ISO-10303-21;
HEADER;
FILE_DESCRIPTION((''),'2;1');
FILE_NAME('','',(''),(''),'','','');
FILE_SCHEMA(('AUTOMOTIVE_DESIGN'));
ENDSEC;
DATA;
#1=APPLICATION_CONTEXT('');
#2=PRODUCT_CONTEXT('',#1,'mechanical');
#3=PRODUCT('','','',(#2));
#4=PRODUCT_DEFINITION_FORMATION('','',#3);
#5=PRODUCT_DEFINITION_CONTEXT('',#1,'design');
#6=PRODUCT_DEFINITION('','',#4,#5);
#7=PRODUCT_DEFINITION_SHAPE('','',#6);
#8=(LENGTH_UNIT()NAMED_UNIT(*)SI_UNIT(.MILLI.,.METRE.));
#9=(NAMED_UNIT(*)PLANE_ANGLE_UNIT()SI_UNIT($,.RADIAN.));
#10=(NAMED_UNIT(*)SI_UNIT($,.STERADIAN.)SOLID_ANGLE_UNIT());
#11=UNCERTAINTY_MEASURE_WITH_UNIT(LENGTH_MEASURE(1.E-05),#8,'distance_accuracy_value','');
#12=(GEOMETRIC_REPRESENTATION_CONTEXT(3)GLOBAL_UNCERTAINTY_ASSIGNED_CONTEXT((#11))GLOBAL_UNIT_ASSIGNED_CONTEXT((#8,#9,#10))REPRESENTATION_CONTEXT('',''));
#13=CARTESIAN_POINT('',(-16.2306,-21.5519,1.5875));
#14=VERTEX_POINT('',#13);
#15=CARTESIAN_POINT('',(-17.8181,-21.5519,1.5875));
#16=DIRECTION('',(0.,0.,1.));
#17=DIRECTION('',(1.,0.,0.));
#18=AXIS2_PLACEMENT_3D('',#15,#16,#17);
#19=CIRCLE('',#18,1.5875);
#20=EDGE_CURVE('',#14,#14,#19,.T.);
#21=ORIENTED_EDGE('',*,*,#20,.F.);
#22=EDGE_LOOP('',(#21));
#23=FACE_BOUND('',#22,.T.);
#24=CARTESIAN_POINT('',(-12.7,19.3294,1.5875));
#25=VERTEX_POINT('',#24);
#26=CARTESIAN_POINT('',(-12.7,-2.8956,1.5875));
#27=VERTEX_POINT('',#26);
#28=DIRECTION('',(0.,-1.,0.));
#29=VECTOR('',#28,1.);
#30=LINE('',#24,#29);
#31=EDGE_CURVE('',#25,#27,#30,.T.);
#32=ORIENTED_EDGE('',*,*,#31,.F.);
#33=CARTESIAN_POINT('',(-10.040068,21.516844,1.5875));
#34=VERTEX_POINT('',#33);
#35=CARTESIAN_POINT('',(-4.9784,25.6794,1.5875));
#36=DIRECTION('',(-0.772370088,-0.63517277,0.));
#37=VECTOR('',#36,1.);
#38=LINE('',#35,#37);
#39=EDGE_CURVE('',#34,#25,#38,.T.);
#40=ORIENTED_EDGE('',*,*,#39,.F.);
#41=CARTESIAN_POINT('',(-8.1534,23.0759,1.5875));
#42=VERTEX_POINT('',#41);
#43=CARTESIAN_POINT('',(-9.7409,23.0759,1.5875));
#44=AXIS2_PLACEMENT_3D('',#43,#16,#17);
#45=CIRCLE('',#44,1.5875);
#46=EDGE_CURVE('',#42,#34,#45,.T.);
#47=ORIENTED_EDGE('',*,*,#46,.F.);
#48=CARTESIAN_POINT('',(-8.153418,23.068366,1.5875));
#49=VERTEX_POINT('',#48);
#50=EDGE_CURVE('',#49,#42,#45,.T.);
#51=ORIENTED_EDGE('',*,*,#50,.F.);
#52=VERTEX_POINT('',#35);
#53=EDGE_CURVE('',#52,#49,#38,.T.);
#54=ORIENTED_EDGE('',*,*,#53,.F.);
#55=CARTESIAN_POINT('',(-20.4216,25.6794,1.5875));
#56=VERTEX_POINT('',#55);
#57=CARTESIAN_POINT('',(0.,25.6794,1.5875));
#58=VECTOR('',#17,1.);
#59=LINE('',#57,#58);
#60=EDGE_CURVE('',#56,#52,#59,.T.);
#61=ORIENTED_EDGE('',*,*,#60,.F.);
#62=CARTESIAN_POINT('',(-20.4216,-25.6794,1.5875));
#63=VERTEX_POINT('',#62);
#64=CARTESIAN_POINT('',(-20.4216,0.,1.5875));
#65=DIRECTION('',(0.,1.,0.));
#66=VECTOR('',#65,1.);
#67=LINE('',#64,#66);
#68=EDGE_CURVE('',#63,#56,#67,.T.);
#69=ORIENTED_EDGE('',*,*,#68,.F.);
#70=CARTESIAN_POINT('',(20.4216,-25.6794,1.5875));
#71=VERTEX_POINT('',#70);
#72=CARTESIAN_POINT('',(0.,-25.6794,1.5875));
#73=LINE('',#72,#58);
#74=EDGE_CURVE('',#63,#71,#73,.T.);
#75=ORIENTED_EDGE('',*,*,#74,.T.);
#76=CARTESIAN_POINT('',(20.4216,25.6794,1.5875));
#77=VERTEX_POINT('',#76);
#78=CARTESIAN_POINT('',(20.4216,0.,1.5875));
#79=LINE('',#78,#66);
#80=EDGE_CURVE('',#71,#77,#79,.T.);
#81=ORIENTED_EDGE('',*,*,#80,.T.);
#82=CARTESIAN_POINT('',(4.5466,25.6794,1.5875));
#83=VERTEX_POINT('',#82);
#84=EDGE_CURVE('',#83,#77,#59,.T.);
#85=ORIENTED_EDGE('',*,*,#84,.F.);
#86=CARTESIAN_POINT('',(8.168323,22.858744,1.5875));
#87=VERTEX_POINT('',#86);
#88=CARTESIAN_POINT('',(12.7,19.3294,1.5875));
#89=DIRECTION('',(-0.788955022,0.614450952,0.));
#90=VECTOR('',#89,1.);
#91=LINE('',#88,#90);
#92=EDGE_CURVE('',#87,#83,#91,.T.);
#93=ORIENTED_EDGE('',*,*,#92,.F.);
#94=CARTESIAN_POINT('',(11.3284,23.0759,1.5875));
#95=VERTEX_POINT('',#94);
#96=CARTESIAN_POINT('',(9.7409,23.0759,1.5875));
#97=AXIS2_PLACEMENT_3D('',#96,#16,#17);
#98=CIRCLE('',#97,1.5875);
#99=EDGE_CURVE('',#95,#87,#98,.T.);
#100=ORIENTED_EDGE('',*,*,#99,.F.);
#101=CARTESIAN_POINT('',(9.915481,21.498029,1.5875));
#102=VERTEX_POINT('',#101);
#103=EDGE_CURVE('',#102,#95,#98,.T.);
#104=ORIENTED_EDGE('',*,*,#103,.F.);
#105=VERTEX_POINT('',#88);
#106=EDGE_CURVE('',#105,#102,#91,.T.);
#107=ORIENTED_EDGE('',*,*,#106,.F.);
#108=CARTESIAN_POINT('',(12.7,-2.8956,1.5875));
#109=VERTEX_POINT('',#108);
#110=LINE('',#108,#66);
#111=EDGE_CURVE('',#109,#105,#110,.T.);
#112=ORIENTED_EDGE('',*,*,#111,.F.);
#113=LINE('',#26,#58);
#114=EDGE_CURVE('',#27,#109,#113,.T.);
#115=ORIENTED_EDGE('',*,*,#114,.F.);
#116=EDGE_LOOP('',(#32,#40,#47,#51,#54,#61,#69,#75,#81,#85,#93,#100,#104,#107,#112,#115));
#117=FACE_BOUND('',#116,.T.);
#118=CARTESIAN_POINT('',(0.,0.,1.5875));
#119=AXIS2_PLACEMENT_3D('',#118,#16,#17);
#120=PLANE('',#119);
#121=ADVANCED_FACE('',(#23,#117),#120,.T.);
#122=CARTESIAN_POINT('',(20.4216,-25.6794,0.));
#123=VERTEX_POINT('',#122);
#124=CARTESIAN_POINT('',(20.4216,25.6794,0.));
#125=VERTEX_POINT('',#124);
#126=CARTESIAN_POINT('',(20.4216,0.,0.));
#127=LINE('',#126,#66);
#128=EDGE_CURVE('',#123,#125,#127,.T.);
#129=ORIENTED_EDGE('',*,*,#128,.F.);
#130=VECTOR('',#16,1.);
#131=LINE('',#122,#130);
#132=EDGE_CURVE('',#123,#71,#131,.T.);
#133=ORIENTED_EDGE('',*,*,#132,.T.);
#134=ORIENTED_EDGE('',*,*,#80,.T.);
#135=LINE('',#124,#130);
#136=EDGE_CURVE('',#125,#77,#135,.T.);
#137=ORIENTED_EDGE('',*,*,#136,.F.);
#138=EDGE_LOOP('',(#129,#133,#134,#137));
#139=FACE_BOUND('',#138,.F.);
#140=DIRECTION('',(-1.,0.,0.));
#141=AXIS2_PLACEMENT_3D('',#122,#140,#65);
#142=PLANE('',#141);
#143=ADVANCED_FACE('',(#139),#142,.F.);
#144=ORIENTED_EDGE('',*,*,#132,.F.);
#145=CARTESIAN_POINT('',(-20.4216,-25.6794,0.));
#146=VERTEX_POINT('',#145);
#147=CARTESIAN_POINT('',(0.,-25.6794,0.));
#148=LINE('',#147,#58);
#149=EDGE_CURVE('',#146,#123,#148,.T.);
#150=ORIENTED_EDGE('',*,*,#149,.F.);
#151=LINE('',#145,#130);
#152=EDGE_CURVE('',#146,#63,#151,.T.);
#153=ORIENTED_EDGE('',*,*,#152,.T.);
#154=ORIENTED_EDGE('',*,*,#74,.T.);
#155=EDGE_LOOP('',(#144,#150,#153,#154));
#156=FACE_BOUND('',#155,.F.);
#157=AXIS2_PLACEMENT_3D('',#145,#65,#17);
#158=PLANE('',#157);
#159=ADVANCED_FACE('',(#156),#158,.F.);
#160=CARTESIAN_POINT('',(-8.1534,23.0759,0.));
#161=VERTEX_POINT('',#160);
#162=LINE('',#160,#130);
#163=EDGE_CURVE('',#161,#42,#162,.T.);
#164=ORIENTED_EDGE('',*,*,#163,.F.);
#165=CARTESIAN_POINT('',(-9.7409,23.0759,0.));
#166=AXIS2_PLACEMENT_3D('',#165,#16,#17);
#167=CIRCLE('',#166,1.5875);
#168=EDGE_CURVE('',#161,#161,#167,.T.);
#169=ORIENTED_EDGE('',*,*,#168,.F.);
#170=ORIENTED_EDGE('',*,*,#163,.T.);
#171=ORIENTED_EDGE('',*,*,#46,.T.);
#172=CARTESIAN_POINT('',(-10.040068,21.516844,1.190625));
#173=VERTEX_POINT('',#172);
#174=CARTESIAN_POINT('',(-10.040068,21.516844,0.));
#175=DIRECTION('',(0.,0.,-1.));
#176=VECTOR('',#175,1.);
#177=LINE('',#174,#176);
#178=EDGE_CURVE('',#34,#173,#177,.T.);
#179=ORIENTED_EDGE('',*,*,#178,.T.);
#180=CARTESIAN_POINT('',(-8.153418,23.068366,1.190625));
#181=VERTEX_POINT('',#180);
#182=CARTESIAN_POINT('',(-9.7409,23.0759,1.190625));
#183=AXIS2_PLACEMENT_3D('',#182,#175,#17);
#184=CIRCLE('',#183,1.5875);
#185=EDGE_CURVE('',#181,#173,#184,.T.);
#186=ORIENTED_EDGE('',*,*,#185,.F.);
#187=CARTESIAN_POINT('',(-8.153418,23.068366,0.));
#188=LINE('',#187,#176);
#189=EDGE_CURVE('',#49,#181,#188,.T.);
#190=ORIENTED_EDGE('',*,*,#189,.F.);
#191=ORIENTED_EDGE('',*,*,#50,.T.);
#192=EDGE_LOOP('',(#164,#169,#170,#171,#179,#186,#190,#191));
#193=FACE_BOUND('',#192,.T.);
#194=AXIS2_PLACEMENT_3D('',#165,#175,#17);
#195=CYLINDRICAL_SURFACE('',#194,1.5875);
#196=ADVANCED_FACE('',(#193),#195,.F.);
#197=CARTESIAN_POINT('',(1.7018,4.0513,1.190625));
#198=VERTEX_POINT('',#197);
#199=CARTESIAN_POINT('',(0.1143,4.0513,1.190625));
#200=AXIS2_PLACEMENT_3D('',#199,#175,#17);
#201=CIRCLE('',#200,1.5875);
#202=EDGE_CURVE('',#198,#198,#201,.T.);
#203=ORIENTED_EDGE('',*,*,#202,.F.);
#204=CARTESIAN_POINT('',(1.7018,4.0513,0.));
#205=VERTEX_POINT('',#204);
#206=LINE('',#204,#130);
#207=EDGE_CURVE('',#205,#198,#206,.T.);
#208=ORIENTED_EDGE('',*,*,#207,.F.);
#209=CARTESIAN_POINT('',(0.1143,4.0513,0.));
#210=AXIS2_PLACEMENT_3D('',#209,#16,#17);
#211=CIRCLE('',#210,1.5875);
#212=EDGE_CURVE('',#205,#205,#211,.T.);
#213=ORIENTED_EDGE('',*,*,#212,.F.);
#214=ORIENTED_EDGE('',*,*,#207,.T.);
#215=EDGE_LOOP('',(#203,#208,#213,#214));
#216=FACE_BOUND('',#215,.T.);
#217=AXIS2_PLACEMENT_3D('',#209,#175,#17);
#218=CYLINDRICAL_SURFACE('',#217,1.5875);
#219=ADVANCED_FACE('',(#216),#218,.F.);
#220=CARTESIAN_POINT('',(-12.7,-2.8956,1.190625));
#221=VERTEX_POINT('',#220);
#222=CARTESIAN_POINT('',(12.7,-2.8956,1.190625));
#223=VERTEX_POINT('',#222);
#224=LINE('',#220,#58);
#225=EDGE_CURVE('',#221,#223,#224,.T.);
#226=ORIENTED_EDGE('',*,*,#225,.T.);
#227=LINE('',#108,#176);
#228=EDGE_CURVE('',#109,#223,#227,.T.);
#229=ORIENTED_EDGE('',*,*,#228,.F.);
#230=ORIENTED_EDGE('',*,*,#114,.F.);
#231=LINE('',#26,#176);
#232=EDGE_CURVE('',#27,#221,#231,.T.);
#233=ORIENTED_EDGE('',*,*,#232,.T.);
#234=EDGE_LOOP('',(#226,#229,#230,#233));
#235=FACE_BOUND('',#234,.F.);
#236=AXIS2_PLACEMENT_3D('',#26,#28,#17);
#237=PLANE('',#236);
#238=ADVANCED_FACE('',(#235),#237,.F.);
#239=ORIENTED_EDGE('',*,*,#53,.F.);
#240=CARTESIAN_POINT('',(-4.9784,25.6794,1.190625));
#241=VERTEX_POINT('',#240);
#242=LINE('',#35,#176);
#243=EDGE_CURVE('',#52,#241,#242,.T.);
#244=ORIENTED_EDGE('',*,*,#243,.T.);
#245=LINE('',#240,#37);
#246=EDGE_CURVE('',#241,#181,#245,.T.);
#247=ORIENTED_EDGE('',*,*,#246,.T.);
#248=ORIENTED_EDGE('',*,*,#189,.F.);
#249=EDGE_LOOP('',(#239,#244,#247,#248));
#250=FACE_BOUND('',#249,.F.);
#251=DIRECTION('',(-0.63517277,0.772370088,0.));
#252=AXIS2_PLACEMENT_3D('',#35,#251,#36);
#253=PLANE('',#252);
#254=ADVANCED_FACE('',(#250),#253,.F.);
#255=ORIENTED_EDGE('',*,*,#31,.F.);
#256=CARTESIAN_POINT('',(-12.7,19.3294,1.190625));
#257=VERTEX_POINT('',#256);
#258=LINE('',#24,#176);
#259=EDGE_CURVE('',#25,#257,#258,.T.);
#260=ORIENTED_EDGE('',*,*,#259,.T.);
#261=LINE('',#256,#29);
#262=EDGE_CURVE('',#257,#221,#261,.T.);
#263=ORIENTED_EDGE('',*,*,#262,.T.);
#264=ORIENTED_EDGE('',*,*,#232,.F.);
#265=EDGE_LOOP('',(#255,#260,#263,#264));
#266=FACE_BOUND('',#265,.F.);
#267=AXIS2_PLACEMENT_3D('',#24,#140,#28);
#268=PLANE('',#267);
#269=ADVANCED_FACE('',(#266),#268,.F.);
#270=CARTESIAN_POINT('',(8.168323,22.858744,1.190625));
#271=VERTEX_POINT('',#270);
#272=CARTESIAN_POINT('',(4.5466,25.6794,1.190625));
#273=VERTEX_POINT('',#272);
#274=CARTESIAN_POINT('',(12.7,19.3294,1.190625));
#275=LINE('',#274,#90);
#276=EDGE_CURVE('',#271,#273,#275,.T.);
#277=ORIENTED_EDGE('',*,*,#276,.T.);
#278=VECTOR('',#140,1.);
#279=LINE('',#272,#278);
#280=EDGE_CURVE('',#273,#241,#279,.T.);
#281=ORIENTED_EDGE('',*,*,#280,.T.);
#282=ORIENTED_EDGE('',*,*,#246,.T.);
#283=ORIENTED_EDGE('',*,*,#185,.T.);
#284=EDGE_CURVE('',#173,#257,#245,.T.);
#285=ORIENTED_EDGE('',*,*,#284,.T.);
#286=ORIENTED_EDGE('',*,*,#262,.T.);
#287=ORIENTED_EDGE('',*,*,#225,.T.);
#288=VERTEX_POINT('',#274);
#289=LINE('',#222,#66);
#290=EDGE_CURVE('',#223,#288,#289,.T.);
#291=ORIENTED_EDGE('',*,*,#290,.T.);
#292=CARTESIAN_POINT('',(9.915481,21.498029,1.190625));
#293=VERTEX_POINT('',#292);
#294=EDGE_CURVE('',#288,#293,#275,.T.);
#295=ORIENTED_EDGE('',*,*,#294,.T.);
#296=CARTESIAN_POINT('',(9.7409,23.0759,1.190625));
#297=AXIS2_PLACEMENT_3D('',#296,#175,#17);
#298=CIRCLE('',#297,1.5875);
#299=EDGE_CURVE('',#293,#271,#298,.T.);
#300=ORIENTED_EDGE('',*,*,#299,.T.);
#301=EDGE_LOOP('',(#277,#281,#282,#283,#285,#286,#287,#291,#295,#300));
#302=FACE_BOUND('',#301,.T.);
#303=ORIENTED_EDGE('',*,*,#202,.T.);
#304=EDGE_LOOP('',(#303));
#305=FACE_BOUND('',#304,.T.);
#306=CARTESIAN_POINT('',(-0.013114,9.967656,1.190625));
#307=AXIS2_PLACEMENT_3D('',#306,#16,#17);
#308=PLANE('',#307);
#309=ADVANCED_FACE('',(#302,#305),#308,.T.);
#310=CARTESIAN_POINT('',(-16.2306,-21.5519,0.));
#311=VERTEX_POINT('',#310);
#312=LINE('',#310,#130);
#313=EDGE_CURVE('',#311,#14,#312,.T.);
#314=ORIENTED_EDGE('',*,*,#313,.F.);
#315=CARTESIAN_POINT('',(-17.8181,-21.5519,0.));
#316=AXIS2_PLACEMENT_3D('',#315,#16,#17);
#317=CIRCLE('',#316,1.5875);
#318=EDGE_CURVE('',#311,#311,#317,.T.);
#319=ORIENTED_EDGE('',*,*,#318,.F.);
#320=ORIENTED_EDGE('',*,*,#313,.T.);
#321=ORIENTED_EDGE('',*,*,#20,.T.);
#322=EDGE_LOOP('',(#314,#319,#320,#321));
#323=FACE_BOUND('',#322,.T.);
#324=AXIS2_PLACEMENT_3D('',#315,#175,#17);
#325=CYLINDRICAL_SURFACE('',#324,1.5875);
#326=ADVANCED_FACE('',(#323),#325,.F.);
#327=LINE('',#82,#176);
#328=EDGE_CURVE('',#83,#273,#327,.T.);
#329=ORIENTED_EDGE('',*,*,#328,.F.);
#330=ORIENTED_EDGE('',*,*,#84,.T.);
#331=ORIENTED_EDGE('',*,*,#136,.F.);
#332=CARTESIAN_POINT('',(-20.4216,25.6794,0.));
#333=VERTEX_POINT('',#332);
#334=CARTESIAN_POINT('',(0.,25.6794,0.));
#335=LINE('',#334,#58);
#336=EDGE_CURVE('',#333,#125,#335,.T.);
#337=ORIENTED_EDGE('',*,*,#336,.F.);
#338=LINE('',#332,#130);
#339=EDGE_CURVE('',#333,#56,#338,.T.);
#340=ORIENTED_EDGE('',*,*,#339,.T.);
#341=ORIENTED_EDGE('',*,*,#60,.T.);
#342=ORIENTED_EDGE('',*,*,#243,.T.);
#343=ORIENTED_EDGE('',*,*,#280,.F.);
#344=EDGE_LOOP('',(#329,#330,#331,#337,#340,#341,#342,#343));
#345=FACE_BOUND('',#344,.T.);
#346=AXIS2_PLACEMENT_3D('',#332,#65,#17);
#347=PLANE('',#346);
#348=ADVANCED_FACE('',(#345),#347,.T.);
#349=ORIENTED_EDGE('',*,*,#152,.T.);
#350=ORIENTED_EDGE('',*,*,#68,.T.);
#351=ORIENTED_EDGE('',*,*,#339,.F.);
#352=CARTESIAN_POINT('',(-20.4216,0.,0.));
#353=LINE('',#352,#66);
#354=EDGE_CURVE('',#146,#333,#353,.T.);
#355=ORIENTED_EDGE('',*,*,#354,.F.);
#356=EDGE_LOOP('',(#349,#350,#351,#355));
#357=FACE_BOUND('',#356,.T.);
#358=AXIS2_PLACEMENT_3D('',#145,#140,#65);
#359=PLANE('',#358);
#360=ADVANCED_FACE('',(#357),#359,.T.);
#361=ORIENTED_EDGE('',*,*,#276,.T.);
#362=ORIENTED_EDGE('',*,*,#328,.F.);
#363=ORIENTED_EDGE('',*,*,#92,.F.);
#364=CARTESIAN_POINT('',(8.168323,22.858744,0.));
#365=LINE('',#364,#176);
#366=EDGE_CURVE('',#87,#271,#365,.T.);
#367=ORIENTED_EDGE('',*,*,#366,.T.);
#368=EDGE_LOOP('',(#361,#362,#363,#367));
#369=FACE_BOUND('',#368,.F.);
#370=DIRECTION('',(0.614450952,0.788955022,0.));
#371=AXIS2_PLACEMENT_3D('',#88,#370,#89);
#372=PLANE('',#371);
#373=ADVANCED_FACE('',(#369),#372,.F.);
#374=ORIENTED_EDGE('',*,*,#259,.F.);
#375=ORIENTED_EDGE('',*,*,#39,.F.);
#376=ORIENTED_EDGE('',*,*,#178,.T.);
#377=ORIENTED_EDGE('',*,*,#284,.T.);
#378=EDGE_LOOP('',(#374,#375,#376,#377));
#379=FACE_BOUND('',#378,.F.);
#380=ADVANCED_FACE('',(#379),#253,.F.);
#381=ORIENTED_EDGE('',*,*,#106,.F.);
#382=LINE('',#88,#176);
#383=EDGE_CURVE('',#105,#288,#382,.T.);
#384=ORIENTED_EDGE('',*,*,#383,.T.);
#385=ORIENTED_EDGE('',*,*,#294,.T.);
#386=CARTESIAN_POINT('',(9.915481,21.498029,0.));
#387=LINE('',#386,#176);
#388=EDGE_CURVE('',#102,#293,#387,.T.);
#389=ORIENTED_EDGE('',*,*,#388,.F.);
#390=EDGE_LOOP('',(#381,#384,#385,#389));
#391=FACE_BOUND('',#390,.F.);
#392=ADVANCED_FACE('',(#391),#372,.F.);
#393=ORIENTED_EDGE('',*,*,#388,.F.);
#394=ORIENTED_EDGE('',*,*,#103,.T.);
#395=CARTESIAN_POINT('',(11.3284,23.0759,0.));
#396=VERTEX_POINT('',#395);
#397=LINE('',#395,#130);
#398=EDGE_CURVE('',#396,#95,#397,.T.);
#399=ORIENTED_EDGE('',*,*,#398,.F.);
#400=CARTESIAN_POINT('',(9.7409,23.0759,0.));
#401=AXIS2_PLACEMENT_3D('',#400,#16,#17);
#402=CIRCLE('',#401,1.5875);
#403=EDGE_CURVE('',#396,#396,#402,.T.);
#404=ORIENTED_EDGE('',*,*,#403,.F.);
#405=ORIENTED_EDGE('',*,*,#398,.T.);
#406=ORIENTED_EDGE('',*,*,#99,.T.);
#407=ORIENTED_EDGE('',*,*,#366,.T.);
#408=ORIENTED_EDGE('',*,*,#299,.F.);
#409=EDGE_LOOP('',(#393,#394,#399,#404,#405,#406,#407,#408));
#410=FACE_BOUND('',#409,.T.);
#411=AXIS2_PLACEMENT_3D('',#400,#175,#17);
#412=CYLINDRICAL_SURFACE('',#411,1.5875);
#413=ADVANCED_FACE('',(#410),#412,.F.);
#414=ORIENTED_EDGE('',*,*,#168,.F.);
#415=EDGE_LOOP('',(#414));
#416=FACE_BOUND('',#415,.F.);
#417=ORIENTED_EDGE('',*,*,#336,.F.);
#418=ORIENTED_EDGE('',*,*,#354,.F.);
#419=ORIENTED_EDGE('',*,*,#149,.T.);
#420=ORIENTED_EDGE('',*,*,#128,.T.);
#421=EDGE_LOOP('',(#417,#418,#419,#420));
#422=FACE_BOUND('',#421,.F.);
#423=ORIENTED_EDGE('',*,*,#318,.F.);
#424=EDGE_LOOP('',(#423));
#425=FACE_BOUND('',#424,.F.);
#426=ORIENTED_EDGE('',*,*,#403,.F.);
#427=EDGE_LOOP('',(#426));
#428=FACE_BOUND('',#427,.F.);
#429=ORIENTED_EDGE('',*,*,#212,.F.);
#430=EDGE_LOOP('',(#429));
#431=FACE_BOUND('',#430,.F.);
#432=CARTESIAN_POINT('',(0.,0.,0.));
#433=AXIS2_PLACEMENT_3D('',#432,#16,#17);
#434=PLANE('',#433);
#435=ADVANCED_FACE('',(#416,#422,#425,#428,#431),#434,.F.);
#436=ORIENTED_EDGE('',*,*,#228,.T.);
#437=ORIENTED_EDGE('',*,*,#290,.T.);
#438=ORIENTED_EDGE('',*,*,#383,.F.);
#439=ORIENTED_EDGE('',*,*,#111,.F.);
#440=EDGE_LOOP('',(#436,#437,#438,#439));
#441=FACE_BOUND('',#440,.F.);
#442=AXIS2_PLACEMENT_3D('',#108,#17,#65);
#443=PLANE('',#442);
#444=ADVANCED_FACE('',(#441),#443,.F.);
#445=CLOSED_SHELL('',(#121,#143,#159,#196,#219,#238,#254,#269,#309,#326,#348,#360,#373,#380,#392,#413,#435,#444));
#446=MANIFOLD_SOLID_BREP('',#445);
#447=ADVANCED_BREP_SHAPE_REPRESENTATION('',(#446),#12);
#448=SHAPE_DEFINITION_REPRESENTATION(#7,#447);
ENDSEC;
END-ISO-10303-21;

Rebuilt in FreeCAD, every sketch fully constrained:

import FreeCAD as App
import Part
import Sketcher
Q = App.Units.Quantity

doc = App.newDocument("Part")
body = doc.addObject("PartDesign::Body", "Body")

# Sketch on XY plane
sketch1 = body.newObject("Sketcher::SketchObject", "Sketch")
sketch1.AttachmentSupport = (doc.getObject("XY_Plane"), [""])
sketch1.MapMode = "FlatFace"
sketch1.addGeometry([
    Part.LineSegment(App.Vector(-20.4, 25.7, 0), App.Vector(-20.4, -25.7, 0)),  # 0
    Part.LineSegment(App.Vector(-20.4, -25.7, 0), App.Vector(20.4, -25.7, 0)),  # 1
    Part.LineSegment(App.Vector(20.4, -25.7, 0), App.Vector(20.4, 25.7, 0)),  # 2
    Part.LineSegment(App.Vector(20.4, 25.7, 0), App.Vector(-20.4, 25.7, 0)),  # 3
    Part.Circle(App.Vector(-17.8, -21.6, 0), App.Vector(0, 0, 1), 1.6),  # 4
    Part.Circle(App.Vector(-9.7, 23.1, 0), App.Vector(0, 0, 1), 1.6),  # 5
    Part.Circle(App.Vector(0.1, 4.1, 0), App.Vector(0, 0, 1), 1.6),  # 6
    Part.Circle(App.Vector(9.7, 23.1, 0), App.Vector(0, 0, 1), 1.6),  # 7
], False)
sketch1.addConstraint([
    Sketcher.Constraint("Coincident", 0, 2, 1, 1),
    Sketcher.Constraint("Coincident", 1, 2, 2, 1),
    Sketcher.Constraint("Coincident", 2, 2, 3, 1),
    Sketcher.Constraint("Coincident", 3, 2, 0, 1),
    Sketcher.Constraint("Vertical", 0),
    Sketcher.Constraint("Horizontal", 1),
    Sketcher.Constraint("Vertical", 2),
    Sketcher.Constraint("Horizontal", 3),
    Sketcher.Constraint("Equal", 4, 5),
    Sketcher.Constraint("Equal", 5, 6),
    Sketcher.Constraint("Equal", 6, 7),
    Sketcher.Constraint("Symmetric", 0, 2, 2, 2, -1, 1),
    Sketcher.Constraint("Symmetric", 5, 3, 7, 3, -2),
    Sketcher.Constraint("Diameter", 4, Q("0.125 in")),
    Sketcher.Constraint("DistanceX", 1, 1, 1, 2, Q("1.608 in")),
    Sketcher.Constraint("DistanceY", 0, 2, 0, 1, Q("2.022 in")),
    Sketcher.Constraint("DistanceX", 4, 3, 5, 3, Q("0.318 in")),
    Sketcher.Constraint("DistanceY", 4, 3, 5, 3, Q("1.757 in")),
    Sketcher.Constraint("DistanceX", 5, 3, 6, 3, Q("0.388 in")),
    Sketcher.Constraint("DistanceY", 6, 3, 5, 3, Q("0.749 in")),
    Sketcher.Constraint("DistanceX", 5, 3, 7, 3, Q("0.767 in")),
    Sketcher.Constraint("DistanceY", 4, 3, -1, 1, Q("0.8485 in")),
])
pad1 = body.newObject("PartDesign::Pad", "Pad")
pad1.Profile = sketch1
pad1.Length = Q("0.0625 in")

# Sketch on XY plane
sketch2 = body.newObject("Sketcher::SketchObject", "Sketch001")
sketch2.AttachmentSupport = (doc.getObject("XY_Plane"), [""])
sketch2.MapMode = "FlatFace"
sketch2.AttachmentOffset = App.Placement(App.Vector(0, 0, 0.0625 * 25.4), App.Rotation())
sketch2.addGeometry([
    Part.LineSegment(App.Vector(5, 26, 0), App.Vector(-5, 26, 0)),  # 0
    Part.LineSegment(App.Vector(-5, 26, 0), App.Vector(-13, 19, 0)),  # 1
    Part.LineSegment(App.Vector(-13, 19, 0), App.Vector(-13, -3, 0)),  # 2
    Part.LineSegment(App.Vector(-13, -3, 0), App.Vector(13, -3, 0)),  # 3
    Part.LineSegment(App.Vector(13, -3, 0), App.Vector(13, 19, 0)),  # 4
    Part.LineSegment(App.Vector(13, 19, 0), App.Vector(5, 26, 0)),  # 5
], False)
sketch2.addConstraint([
    Sketcher.Constraint("Coincident", 0, 2, 1, 1),
    Sketcher.Constraint("Coincident", 1, 2, 2, 1),
    Sketcher.Constraint("Coincident", 2, 2, 3, 1),
    Sketcher.Constraint("Coincident", 3, 2, 4, 1),
    Sketcher.Constraint("Coincident", 4, 2, 5, 1),
    Sketcher.Constraint("Coincident", 5, 2, 0, 1),
    Sketcher.Constraint("Horizontal", 0),
    Sketcher.Constraint("Vertical", 2),
    Sketcher.Constraint("Horizontal", 3),
    Sketcher.Constraint("Vertical", 4),
    Sketcher.Constraint("Symmetric", 1, 2, 4, 2, -2),
    Sketcher.Constraint("DistanceX", 3, 1, 3, 2, Q("1 in")),
    Sketcher.Constraint("DistanceX", 0, 2, 0, 1, Q("0.375 in")),
    Sketcher.Constraint("DistanceY", 2, 2, 2, 1, Q("0.875 in")),
    Sketcher.Constraint("DistanceY", 1, 2, 0, 2, Q("0.25 in")),
    Sketcher.Constraint("DistanceX", 0, 2, -1, 1, Q("0.196 in")),
    Sketcher.Constraint("DistanceY", -1, 1, 0, 2, Q("1.011 in")),
])
pocket1 = body.newObject("PartDesign::Pocket", "Pocket")
pocket1.Profile = sketch2
pocket1.Length = Q("0.015625 in")

doc.recompute()
